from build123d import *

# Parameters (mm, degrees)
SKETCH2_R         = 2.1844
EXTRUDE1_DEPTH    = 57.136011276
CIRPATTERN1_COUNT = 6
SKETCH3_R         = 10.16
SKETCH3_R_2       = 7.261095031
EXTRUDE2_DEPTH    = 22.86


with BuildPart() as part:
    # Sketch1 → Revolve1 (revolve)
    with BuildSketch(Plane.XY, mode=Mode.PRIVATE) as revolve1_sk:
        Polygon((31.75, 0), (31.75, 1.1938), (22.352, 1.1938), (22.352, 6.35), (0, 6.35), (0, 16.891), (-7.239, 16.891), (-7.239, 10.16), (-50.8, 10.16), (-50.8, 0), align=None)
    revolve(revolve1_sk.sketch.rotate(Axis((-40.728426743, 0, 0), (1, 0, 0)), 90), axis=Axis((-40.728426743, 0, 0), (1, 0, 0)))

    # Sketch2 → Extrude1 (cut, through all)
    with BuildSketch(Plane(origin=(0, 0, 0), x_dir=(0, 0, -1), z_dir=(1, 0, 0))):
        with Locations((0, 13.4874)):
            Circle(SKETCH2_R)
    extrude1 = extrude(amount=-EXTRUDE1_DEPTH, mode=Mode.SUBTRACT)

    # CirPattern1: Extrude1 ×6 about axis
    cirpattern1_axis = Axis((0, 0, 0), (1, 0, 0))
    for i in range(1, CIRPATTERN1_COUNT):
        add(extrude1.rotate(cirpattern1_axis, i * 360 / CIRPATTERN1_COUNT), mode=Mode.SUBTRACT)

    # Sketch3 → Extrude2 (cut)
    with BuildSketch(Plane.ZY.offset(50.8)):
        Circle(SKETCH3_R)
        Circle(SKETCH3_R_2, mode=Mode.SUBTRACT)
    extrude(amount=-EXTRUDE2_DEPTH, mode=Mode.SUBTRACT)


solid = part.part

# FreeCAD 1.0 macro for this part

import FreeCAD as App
import Part
import Sketcher
from FreeCAD import Vector
Q = App.Units.Quantity


def add_polygon(sketch, points):
    """Adds a closed chain of lines whose ends are joined by coincident constraints."""
    first, n = sketch.GeometryCount, len(points)
    for a, b in zip(points, points[1:] + points[:1]):
        sketch.addGeometry(Part.LineSegment(App.Vector(*a, 0), App.Vector(*b, 0)), False)
    for i in range(n):
        sketch.addConstraint(Sketcher.Constraint("Coincident", first + i, 2, first + (i + 1) % n, 1))

doc = App.newDocument("Part")
body = doc.addObject("PartDesign::Body", "Body")

# Sketch on XY plane
sketch1 = doc.addObject("Sketcher::SketchObject", "Sketch")
body.addObject(sketch1)
sketch1.AttachmentSupport = (doc.XY_Plane, [""])
sketch1.MapMode = "FlatFace"
add_polygon(sketch1, [(31.8, 0), (31.8, 1.2), (22.4, 1.2), (22.4, 6.3), (0, 6.3), (0, 16.9), (-7.2, 16.9), (-7.2, 10.2), (-50.8, 10.2), (-50.8, 0)])  # lines 0-9
sketch1.addConstraint([
    Sketcher.Constraint("Vertical", 0),
    Sketcher.Constraint("Horizontal", 1),
    Sketcher.Constraint("Vertical", 2),
    Sketcher.Constraint("Horizontal", 3),
    Sketcher.Constraint("Vertical", 4),
    Sketcher.Constraint("Horizontal", 5),
    Sketcher.Constraint("Vertical", 6),
    Sketcher.Constraint("Horizontal", 7),
    Sketcher.Constraint("Vertical", 8),
    Sketcher.Constraint("Horizontal", 9),
    Sketcher.Constraint("PointOnObject", 3, 2, -2),
    Sketcher.Constraint("PointOnObject", 8, 2, -1),
    Sketcher.Constraint("DistanceY", 8, 2, 8, 1, Q("0.4 in")),
    Sketcher.Constraint("DistanceX", 7, 2, -1, 1, Q("2 in")),
    Sketcher.Constraint("DistanceX", 1, 2, 1, 1, Q("0.37 in")),
    Sketcher.Constraint("DistanceX", 3, 2, 3, 1, Q("0.88 in")),
    Sketcher.Constraint("DistanceX", 5, 2, 5, 1, Q("0.285 in")),
    Sketcher.Constraint("DistanceY", 0, 1, 0, 2, Q("0.047 in")),
    Sketcher.Constraint("DistanceY", 2, 1, 2, 2, Q("0.203 in")),
    Sketcher.Constraint("DistanceY", 4, 1, 4, 2, Q("0.415 in")),
])
revolution = doc.addObject("PartDesign::Revolution", "Revolution")
body.addObject(revolution)
revolution.Profile = sketch1
revolution.ReferenceAxis = (sketch1, ["H_Axis"])
revolution.Angle = 360

# Sketch on YZ plane
sketch2 = doc.addObject("Sketcher::SketchObject", "Sketch001")
body.addObject(sketch2)
sketch2.AttachmentSupport = (doc.YZ_Plane, [""])
sketch2.MapMode = "FlatFace"
sketch2.addGeometry(Part.Circle(Vector(13.5, 0, 0), Vector(0, 0, 1), 2.2), False)
sketch2.addConstraint([
    Sketcher.Constraint("PointOnObject", 0, 3, -1),
    Sketcher.Constraint("Diameter", 0, Q("0.172 in")),
    Sketcher.Constraint("DistanceX", -1, 1, 0, 3, Q("0.531 in")),
])
pocket1 = doc.addObject("PartDesign::Pocket", "Pocket")
body.addObject(pocket1)
pocket1.Profile = sketch2
pocket1.Type = "ThroughAll"
doc.recompute()

polarpattern = doc.addObject("PartDesign::PolarPattern", "PolarPattern")
body.addObject(polarpattern)
polarpattern.Originals = [pocket1]
polarpattern.Axis = (doc.X_Axis, [""])
polarpattern.Angle = 360
polarpattern.Occurrences = 6
body.Tip = polarpattern

# Sketch on YZ plane
sketch3 = doc.addObject("Sketcher::SketchObject", "Sketch002")
body.addObject(sketch3)
sketch3.AttachmentSupport = (doc.YZ_Plane, [""])
sketch3.MapMode = "FlatFace"
sketch3.AttachmentOffset = App.Placement(Vector(0, 0, -2 * 25.4), App.Rotation())
sketch3.addGeometry([
    Part.Circle(Vector(0, 0, 0), Vector(0, 0, 1), 10),
    Part.Circle(Vector(0, 0, 0), Vector(0, 0, 1), 7),
], False)
sketch3.addConstraint([
    Sketcher.Constraint("Coincident", 0, 3, -1, 1),
    Sketcher.Constraint("Coincident", 1, 3, -1, 1),
    Sketcher.Constraint("Diameter", 0, Q("0.8 in")),
    Sketcher.Constraint("Diameter", 1, Q("14.52219 mm")),
])
pocket2 = doc.addObject("PartDesign::Pocket", "Pocket001")
body.addObject(pocket2)
pocket2.Profile = sketch3
pocket2.Length = Q("0.9 in")
pocket2.Reversed = True

doc.recompute()
